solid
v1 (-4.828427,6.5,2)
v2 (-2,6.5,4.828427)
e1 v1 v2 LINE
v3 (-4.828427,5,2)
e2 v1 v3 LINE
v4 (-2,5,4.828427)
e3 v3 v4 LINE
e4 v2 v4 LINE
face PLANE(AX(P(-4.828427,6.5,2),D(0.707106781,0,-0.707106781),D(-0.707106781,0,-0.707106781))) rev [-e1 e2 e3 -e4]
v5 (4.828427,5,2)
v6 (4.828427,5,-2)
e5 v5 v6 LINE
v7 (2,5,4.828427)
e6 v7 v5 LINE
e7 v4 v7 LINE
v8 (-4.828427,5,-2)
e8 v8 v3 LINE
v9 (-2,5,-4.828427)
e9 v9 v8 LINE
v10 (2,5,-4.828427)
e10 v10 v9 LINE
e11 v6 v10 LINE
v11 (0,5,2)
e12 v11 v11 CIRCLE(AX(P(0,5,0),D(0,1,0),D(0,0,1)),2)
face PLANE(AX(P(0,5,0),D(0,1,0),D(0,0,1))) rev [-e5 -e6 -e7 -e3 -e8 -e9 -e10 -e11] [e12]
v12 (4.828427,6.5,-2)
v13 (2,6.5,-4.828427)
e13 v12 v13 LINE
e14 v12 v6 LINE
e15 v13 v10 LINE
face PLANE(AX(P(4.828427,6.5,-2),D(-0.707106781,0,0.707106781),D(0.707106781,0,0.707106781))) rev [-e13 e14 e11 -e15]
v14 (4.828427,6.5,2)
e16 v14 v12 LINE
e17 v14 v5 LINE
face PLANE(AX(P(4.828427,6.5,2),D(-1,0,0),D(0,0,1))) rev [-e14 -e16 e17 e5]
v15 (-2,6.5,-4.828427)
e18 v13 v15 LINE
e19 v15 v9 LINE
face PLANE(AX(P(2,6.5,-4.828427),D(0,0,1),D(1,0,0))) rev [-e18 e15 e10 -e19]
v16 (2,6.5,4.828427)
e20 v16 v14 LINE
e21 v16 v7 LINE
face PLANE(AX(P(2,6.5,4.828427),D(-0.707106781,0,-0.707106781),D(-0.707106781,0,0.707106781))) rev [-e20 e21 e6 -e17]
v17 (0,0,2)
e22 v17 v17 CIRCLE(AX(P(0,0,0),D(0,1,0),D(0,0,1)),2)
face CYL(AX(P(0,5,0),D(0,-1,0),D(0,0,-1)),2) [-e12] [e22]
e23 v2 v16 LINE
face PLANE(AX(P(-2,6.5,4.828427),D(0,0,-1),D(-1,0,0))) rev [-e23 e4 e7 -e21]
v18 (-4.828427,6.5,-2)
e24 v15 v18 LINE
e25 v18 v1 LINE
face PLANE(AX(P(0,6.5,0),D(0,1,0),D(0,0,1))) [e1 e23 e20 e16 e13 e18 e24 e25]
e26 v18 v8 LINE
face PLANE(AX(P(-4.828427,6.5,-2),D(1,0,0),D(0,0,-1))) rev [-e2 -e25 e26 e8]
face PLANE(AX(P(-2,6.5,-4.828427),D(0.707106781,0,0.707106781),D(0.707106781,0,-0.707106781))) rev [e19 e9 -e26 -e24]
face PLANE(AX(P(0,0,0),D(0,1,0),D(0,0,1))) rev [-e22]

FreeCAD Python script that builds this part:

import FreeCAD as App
import Part
import Sketcher
Q = App.Units.Quantity

doc = App.newDocument("Part")
body = doc.addObject("PartDesign::Body", "Body")

sketch1 = doc.addObject("Sketcher::SketchObject", "Sketch")
body.addObject(sketch1)
sketch1.AttachmentSupport = (doc.XZ_Plane, [""])
sketch1.MapMode = "FlatFace"
sketch1.addGeometry(Part.Circle(App.Vector(0, 0, 0), App.Vector(0, 0, 1), 2), False)
sketch1.addConstraint(Sketcher.Constraint("Coincident", 0, 3, -1, 1))
sketch1.addConstraint(Sketcher.Constraint("Diameter", 0, Q("4 mm")))
pad1 = doc.addObject("PartDesign::Pad", "Pad")
body.addObject(pad1)
pad1.Profile = sketch1
pad1.Length = 5
pad1.Reversed = True

sketch2 = doc.addObject("Sketcher::SketchObject", "Sketch001")
body.addObject(sketch2)
sketch2.AttachmentSupport = (doc.XZ_Plane, [""])
sketch2.MapMode = "FlatFace"
sketch2.AttachmentOffset = App.Placement(App.Vector(0, 0, -5), App.Rotation())
sketch2.addGeometry(Part.LineSegment(App.Vector(4.8, -2, 0), App.Vector(2, -4.8, 0)), False)
sketch2.addGeometry(Part.LineSegment(App.Vector(2, -4.8, 0), App.Vector(-2, -4.8, 0)), False)
sketch2.addGeometry(Part.LineSegment(App.Vector(-2, -4.8, 0), App.Vector(-4.8, -2, 0)), False)
sketch2.addGeometry(Part.LineSegment(App.Vector(-4.8, -2, 0), App.Vector(-4.8, 2, 0)), False)
sketch2.addGeometry(Part.LineSegment(App.Vector(-4.8, 2, 0), App.Vector(-2, 4.8, 0)), False)
sketch2.addGeometry(Part.LineSegment(App.Vector(-2, 4.8, 0), App.Vector(2, 4.8, 0)), False)
sketch2.addGeometry(Part.LineSegment(App.Vector(2, 4.8, 0), App.Vector(4.8, 2, 0)), False)
sketch2.addGeometry(Part.LineSegment(App.Vector(4.8, 2, 0), App.Vector(4.8, -2, 0)), False)
sketch2.addConstraint(Sketcher.Constraint("Coincident", 0, 2, 1, 1))
sketch2.addConstraint(Sketcher.Constraint("Coincident", 1, 2, 2, 1))
sketch2.addConstraint(Sketcher.Constraint("Coincident", 2, 2, 3, 1))
sketch2.addConstraint(Sketcher.Constraint("Coincident", 3, 2, 4, 1))
sketch2.addConstraint(Sketcher.Constraint("Coincident", 4, 2, 5, 1))
sketch2.addConstraint(Sketcher.Constraint("Coincident", 5, 2, 6, 1))
sketch2.addConstraint(Sketcher.Constraint("Coincident", 6, 2, 7, 1))
sketch2.addConstraint(Sketcher.Constraint("Coincident", 7, 2, 0, 1))
sketch2.addConstraint(Sketcher.Constraint("Horizontal", 1))
sketch2.addConstraint(Sketcher.Constraint("Vertical", 3))
sketch2.addConstraint(Sketcher.Constraint("Horizontal", 5))
sketch2.addConstraint(Sketcher.Constraint("Vertical", 7))
sketch2.addConstraint(Sketcher.Constraint("Symmetric", 0, 2, 4, 2, -1, 1))
sketch2.addConstraint(Sketcher.Constraint("Symmetric", 2, 2, 6, 2, -1, 1))
sketch2.addConstraint(Sketcher.Constraint("Perpendicular", 0, 2))
sketch2.addConstraint(Sketcher.Constraint("Perpendicular", 2, 4))
sketch2.addConstraint(Sketcher.Constraint("Perpendicular", 4, 6))
sketch2.addConstraint(Sketcher.Constraint("Horizontal", 3, 2, 6, 2))
sketch2.addConstraint(Sketcher.Constraint("Vertical", 1, 2, 4, 2))
sketch2.addConstraint(Sketcher.Constraint("Equal", 5, 3))
sketch2.addConstraint(Sketcher.Constraint("DistanceX", 1, 2, 1, 1, Q("4 mm")))
sketch2.addConstraint(Sketcher.Constraint("Distance", 0, Q("4 mm")))
pad2 = doc.addObject("PartDesign::Pad", "Pad001")
body.addObject(pad2)
pad2.Profile = sketch2
pad2.Length = 1.5
pad2.Reversed = True

doc.recompute()
